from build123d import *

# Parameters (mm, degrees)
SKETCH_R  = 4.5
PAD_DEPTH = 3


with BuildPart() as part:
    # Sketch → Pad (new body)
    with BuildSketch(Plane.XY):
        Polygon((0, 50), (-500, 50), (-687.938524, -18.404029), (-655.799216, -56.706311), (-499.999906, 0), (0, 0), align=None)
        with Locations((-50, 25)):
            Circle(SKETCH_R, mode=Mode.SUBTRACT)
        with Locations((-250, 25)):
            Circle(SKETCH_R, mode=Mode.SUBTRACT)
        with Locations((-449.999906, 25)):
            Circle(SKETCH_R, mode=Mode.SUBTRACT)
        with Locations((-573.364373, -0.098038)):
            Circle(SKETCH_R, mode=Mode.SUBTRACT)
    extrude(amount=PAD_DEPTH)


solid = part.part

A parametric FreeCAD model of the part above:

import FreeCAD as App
import Part
import Sketcher

V = App.Vector
Q = App.Units.Quantity

doc = App.newDocument("Part")
body = doc.addObject("PartDesign::Body", "Body")

# Sketch on XY plane
sketch1 = body.newObject("Sketcher::SketchObject", "Sketch")
sketch1.AttachmentSupport = (doc.getObject("XY_Plane"), [""])
sketch1.MapMode = "FlatFace"
sketch1.addGeometry(Part.LineSegment(V(0, 50, 0), V(-500, 50, 0)), False)
sketch1.addGeometry(Part.LineSegment(V(-500, 50, 0), V(-687.938524, -18.404029, 0)), False)
sketch1.addGeometry(Part.LineSegment(V(-687.938524, -18.404029, 0), V(-655.799216, -56.706311, 0)), False)
sketch1.addGeometry(Part.LineSegment(V(-655.799216, -56.706311, 0), V(-499.999906, 0, 0)), False)
sketch1.addGeometry(Part.LineSegment(V(-499.999906, 0, 0), V(0, 0, 0)), False)
sketch1.addGeometry(Part.LineSegment(V(0, 0, 0), V(0, 50, 0)), False)
sketch1.addGeometry(Part.Circle(V(-573.364373, -0.098038, 0), V(0, 0, 1), 4.5), False)
sketch1.addGeometry(Part.Circle(V(-449.999906, 25, 0), V(0, 0, 1), 4.5), False)
sketch1.addGeometry(Part.Circle(V(-250, 25, 0), V(0, 0, 1), 4.5), False)
sketch1.addGeometry(Part.Circle(V(-50, 25, 0), V(0, 0, 1), 4.5), False)
sketch1.addConstraint(Sketcher.Constraint("Coincident", 0, 2, 1, 1))
sketch1.addConstraint(Sketcher.Constraint("Coincident", 1, 2, 2, 1))
sketch1.addConstraint(Sketcher.Constraint("Coincident", 2, 2, 3, 1))
sketch1.addConstraint(Sketcher.Constraint("Coincident", 3, 2, 4, 1))
sketch1.addConstraint(Sketcher.Constraint("Coincident", 4, 2, 5, 1))
sketch1.addConstraint(Sketcher.Constraint("Coincident", 5, 2, 0, 1))
sketch1.addConstraint(Sketcher.Constraint("Horizontal", 0))
sketch1.addConstraint(Sketcher.Constraint("Horizontal", 4))
sketch1.addConstraint(Sketcher.Constraint("Vertical", 5))
sketch1.addConstraint(Sketcher.Constraint("Coincident", 4, 2, -1, 1))
sketch1.addConstraint(Sketcher.Constraint("Equal", 6, 7))
sketch1.addConstraint(Sketcher.Constraint("Equal", 7, 8))
sketch1.addConstraint(Sketcher.Constraint("Equal", 8, 9))
sketch1.addConstraint(Sketcher.Constraint("Parallel", 1, 3))
sketch1.addConstraint(Sketcher.Constraint("Horizontal", 7, 3, 8, 3))
sketch1.addConstraint(Sketcher.Constraint("Horizontal", 8, 3, 9, 3))
sketch1.addConstraint(Sketcher.Constraint("Diameter", 6, 9.0))
sketch1.addConstraint(Sketcher.Constraint("DistanceX", 0, 2, 0, 1, 500.0))
sketch1.addConstraint(Sketcher.Constraint("DistanceY", 5, 1, 5, 2, 50.0))
sketch1.addConstraint(Sketcher.Constraint("Angle", 1, Q("-160 deg")))
sketch1.addConstraint(Sketcher.Constraint("Distance", 1, 200.0))
sketch1.addConstraint(Sketcher.Constraint("Distance", 2, 49.999999))
sketch1.addConstraint(Sketcher.Constraint("DistanceY", -1, 1, 7, 3, 25.0))
sketch1.addConstraint(Sketcher.Constraint("DistanceX", 8, 3, -1, 1, 250.0))
sketch1.addConstraint(Sketcher.Constraint("DistanceX", 9, 3, -1, 1, 50.0))
sketch1.addConstraint(Sketcher.Constraint("DistanceX", 3, 2, 7, 3, 50.0))
sketch1.addConstraint(Sketcher.Constraint("DistanceX", 4, 1, 4, 2, 499.999906))
sketch1.addConstraint(Sketcher.Constraint("DistanceY", 6, 3, 0, 2, 50.098038))
sketch1.addConstraint(Sketcher.Constraint("DistanceX", 1, 2, 6, 3, 114.574151))
pad1 = body.newObject("PartDesign::Pad", "Pad")
pad1.Profile = sketch1
pad1.Length = 3

doc.recompute()
